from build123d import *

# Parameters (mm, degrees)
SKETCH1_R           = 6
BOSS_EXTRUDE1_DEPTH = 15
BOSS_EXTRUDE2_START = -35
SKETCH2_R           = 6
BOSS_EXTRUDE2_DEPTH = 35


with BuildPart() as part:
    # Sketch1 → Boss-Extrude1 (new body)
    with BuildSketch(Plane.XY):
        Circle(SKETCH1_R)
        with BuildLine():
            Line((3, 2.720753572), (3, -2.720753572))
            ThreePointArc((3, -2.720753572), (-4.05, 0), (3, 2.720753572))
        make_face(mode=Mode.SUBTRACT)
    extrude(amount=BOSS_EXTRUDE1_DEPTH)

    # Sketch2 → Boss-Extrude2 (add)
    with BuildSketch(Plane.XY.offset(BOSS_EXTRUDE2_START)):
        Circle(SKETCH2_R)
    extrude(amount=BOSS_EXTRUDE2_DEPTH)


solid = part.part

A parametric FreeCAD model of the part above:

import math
import FreeCAD as App
import Part
import Sketcher
from FreeCAD import Vector

doc = App.newDocument("Part")
body = doc.addObject("PartDesign::Body", "Body")

sketch1 = body.newObject("Sketcher::SketchObject", "Sketch")
sketch1.AttachmentSupport = (doc.getObject("XY_Plane"), [""])
sketch1.MapMode = "FlatFace"
sketch1.addGeometry(Part.Circle(Vector(0, 0, 0), Vector(0, 0, 1), 6), False)
sketch1.addGeometry(Part.ArcOfCircle(Part.Circle(Vector(0, 0, 0), Vector(0, 0, 1), 4), math.radians(42), math.radians(318)), False)
sketch1.addGeometry(Part.LineSegment(Vector(3, 2.7, 0), Vector(3, -2.7, 0)), False)
sketch1.addConstraint(Sketcher.Constraint("Coincident", 1, 1, 2, 1))
sketch1.addConstraint(Sketcher.Constraint("Coincident", 2, 2, 1, 2))
sketch1.addConstraint(Sketcher.Constraint("Vertical", 2))
sketch1.addConstraint(Sketcher.Constraint("Coincident", 0, 3, -1, 1))
sketch1.addConstraint(Sketcher.Constraint("Coincident", 1, 3, -1, 1))
sketch1.addConstraint(Sketcher.Constraint("Diameter", 0, 12.0))
sketch1.addConstraint(Sketcher.Constraint("Radius", 1, 4.05))
sketch1.addConstraint(Sketcher.Constraint("DistanceX", -1, 1, 1, 1, 3.0))
pad1 = body.newObject("PartDesign::Pad", "Pad")
pad1.Profile = sketch1
pad1.Length = 15

sketch2 = body.newObject("Sketcher::SketchObject", "Sketch001")
sketch2.AttachmentSupport = (doc.getObject("XY_Plane"), [""])
sketch2.MapMode = "FlatFace"
sketch2.AttachmentOffset = App.Placement(Vector(0, 0, -35), App.Rotation())
sketch2.addGeometry(Part.Circle(Vector(0, 0, 0), Vector(0, 0, 1), 6), False)
sketch2.addConstraint(Sketcher.Constraint("Coincident", 0, 3, -1, 1))
sketch2.addConstraint(Sketcher.Constraint("Diameter", 0, 12.0))
pad2 = body.newObject("PartDesign::Pad", "Pad001")
pad2.Profile = sketch2
pad2.Length = 35

doc.recompute()
